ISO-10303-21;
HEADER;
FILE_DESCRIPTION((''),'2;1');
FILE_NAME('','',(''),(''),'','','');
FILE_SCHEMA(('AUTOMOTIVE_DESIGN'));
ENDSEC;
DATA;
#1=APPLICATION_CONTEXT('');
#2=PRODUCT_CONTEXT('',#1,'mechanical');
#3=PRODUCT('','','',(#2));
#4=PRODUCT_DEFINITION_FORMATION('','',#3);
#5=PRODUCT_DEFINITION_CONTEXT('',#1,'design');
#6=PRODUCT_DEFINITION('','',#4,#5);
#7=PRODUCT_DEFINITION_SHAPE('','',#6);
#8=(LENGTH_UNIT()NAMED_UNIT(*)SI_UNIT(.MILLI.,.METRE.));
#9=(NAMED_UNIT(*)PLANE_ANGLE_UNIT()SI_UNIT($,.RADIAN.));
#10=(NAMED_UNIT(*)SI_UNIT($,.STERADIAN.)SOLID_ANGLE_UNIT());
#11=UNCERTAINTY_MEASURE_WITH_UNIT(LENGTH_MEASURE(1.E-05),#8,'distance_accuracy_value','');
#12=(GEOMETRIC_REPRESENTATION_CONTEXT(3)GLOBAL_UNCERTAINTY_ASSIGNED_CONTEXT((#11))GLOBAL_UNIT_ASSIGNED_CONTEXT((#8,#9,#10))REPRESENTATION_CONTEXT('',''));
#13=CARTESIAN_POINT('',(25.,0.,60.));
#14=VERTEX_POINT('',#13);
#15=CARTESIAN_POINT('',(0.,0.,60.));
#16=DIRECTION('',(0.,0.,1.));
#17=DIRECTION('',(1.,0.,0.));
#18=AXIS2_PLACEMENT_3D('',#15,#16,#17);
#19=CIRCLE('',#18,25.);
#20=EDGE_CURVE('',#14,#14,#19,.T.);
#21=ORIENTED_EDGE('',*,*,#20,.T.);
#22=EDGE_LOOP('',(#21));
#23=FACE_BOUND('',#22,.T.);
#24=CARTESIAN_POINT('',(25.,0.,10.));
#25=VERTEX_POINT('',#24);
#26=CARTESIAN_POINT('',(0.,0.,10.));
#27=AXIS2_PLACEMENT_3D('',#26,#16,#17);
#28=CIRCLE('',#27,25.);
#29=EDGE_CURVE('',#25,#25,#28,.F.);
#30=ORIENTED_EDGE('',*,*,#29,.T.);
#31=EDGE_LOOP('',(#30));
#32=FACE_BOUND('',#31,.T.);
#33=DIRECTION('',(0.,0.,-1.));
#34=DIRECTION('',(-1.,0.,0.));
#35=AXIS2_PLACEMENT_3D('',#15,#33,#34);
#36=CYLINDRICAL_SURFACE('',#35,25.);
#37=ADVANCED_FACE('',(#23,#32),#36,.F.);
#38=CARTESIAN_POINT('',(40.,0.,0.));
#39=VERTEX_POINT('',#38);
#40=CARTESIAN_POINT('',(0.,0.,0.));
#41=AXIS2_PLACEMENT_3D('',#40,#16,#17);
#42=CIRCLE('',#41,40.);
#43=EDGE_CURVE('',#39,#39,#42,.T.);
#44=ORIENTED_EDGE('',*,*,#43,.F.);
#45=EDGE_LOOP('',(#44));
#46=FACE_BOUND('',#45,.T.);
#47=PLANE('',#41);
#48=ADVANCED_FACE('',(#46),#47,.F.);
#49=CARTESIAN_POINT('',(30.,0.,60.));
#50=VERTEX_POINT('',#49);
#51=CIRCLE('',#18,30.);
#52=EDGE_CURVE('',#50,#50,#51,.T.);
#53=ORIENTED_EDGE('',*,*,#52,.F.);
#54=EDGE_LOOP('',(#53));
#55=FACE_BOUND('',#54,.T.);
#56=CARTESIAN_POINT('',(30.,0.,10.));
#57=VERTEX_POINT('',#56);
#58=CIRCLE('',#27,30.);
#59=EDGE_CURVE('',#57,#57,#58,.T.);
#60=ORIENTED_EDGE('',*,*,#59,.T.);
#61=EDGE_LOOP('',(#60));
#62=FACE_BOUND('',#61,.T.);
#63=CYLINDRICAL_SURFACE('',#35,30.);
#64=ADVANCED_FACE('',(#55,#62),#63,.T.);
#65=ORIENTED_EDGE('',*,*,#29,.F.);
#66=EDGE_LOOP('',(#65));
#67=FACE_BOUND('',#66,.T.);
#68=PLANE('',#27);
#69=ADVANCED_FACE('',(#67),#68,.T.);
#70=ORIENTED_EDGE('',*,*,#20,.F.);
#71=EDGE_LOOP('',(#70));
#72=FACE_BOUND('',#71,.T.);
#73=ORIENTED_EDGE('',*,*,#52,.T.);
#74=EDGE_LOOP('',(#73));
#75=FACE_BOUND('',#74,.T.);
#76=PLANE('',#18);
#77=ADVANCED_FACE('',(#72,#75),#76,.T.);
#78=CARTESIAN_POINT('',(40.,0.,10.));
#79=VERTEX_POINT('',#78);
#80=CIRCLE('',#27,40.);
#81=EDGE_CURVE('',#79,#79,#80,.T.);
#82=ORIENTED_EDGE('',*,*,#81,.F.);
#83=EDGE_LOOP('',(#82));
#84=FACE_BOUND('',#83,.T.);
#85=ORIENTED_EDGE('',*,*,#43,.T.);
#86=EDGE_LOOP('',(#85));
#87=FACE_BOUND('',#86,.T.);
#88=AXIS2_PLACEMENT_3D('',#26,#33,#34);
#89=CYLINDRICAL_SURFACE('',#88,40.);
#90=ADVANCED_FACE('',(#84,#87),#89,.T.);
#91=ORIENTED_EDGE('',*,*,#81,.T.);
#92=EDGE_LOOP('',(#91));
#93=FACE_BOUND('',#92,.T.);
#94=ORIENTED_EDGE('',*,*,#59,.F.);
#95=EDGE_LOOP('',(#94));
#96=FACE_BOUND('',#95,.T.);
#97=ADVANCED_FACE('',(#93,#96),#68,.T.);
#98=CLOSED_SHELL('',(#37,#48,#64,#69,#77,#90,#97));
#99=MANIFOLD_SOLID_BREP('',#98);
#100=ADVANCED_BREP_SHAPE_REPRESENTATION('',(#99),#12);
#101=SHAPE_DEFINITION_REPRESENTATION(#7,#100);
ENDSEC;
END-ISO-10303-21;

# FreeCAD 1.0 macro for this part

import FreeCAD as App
import Part
import Sketcher

V = App.Vector

doc = App.newDocument("Part")
body = doc.addObject("PartDesign::Body", "Body")

sketch1 = doc.addObject("Sketcher::SketchObject", "Sketch")
body.addObject(sketch1)
sketch1.AttachmentSupport = (doc.XY_Plane, [""])
sketch1.MapMode = "FlatFace"
sketch1.addGeometry(Part.Circle(V(0, 0, 0), V(0, 0, 1), 40), False)
sketch1.addConstraint([
    Sketcher.Constraint("Coincident", 0, 3, -1, 1),
    Sketcher.Constraint("Diameter", 0, 80.0),
])
pad1 = doc.addObject("PartDesign::Pad", "Pad")
body.addObject(pad1)
pad1.Profile = sketch1
pad1.Length = 10

sketch2 = doc.addObject("Sketcher::SketchObject", "Sketch001")
body.addObject(sketch2)
sketch2.AttachmentSupport = (doc.XY_Plane, [""])
sketch2.MapMode = "FlatFace"
sketch2.AttachmentOffset = App.Placement(V(0, 0, 10), App.Rotation())
sketch2.addGeometry([
    Part.Circle(V(0, 0, 0), V(0, 0, 1), 30),
    Part.Circle(V(0, 0, 0), V(0, 0, 1), 25),
], False)
sketch2.addConstraint([
    Sketcher.Constraint("Coincident", 0, 3, -1, 1),
    Sketcher.Constraint("Coincident", 1, 3, -1, 1),
    Sketcher.Constraint("Diameter", 0, 60.0),
    Sketcher.Constraint("Diameter", 1, 50.0),
])
pad2 = doc.addObject("PartDesign::Pad", "Pad001")
body.addObject(pad2)
pad2.Profile = sketch2
pad2.Length = 50

doc.recompute()
